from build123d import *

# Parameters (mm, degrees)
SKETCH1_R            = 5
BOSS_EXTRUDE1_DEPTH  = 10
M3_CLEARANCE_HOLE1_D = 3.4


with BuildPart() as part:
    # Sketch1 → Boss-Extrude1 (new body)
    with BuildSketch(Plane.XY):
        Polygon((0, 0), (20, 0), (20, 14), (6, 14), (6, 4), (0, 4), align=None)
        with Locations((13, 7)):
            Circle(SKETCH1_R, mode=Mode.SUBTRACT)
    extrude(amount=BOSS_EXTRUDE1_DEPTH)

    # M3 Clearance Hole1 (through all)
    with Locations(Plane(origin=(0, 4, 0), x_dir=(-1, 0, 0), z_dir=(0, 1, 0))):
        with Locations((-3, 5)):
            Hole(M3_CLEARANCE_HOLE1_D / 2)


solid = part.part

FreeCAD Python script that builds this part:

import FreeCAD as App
import Part
import Sketcher
from FreeCAD import Vector
Q = App.Units.Quantity

doc = App.newDocument("Part")
params = doc.addObject("Spreadsheet::Sheet", "Params")
for row, (alias, value) in enumerate([
    ("sketch1_diameter", "10 mm"),
    ("sketch1_width", "20 mm"),
    ("sketch1_width2", "14 mm"),
    ("sketch1_height", "10 mm"),
    ("pad1_length", "10 mm"),
    ("sketch2_diameter", "3.4 mm"),
    ("hole_diameter", "3.4 mm"),
], start=1):
    params.set(f"A{row}", alias)
    params.set(f"B{row}", "=" + value)
    params.setAlias(f"B{row}", alias)

body = doc.addObject("PartDesign::Body", "Body")

# Sketch on XY plane
sketch1 = body.newObject("Sketcher::SketchObject", "Sketch")
sketch1.AttachmentSupport = (doc.getObject("XY_Plane"), [""])
sketch1.MapMode = "FlatFace"
sketch1.addGeometry([
    Part.LineSegment(Vector(0, 0, 0), Vector(20, 0, 0)),  # 0
    Part.LineSegment(Vector(20, 0, 0), Vector(20, 14, 0)),  # 1
    Part.LineSegment(Vector(20, 14, 0), Vector(6, 14, 0)),  # 2
    Part.LineSegment(Vector(6, 14, 0), Vector(6, 4, 0)),  # 3
    Part.LineSegment(Vector(6, 4, 0), Vector(0, 4, 0)),  # 4
    Part.LineSegment(Vector(0, 4, 0), Vector(0, 0, 0)),  # 5
    Part.Circle(Vector(13, 7, 0), Vector(0, 0, 1), 5),  # 6
], False)
sketch1.addConstraint([
    Sketcher.Constraint("Coincident", 0, 2, 1, 1),
    Sketcher.Constraint("Coincident", 1, 2, 2, 1),
    Sketcher.Constraint("Coincident", 2, 2, 3, 1),
    Sketcher.Constraint("Coincident", 3, 2, 4, 1),
    Sketcher.Constraint("Coincident", 4, 2, 5, 1),
    Sketcher.Constraint("Coincident", 5, 2, 0, 1),
    Sketcher.Constraint("Horizontal", 0),
    Sketcher.Constraint("Vertical", 1),
    Sketcher.Constraint("Horizontal", 2),
    Sketcher.Constraint("Vertical", 3),
    Sketcher.Constraint("Horizontal", 4),
    Sketcher.Constraint("Vertical", 5),
    Sketcher.Constraint("Coincident", 5, 2, -1, 1),
    Sketcher.Constraint("Equal", 2, 1),
    Sketcher.Constraint("Diameter", 6, Q("10 mm")),
    Sketcher.Constraint("DistanceX", 0, 1, 0, 2, Q("20 mm")),
    Sketcher.Constraint("DistanceX", 2, 2, 2, 1, Q("14 mm")),
    Sketcher.Constraint("DistanceY", 3, 2, 3, 1, Q("10 mm")),
    Sketcher.Constraint("DistanceX", -1, 1, 6, 3, Q("13 mm")),
    Sketcher.Constraint("DistanceY", -1, 1, 6, 3, Q("7 mm")),
])
sketch1.setExpression("Constraints[14]", "Params.sketch1_diameter")
sketch1.setExpression("Constraints[15]", "Params.sketch1_width")
sketch1.setExpression("Constraints[16]", "Params.sketch1_width2")
sketch1.setExpression("Constraints[17]", "Params.sketch1_height")
pad1 = body.newObject("PartDesign::Pad", "Pad")
pad1.Profile = sketch1
pad1.setExpression("Length", "Params.pad1_length")

# Sketch on XZ plane
sketch2 = body.newObject("Sketcher::SketchObject", "Sketch001")
sketch2.AttachmentSupport = (doc.getObject("XZ_Plane"), [""])
sketch2.MapMode = "FlatFace"
sketch2.AttachmentOffset = App.Placement(Vector(0, 0, -4), App.Rotation())
sketch2.addGeometry(Part.Circle(Vector(3, 5, 0), Vector(0, 0, 1), 1.7), False)
sketch2.addConstraint([
    Sketcher.Constraint("Diameter", 0, Q("3.4 mm")),
    Sketcher.Constraint("DistanceX", -1, 1, 0, 3, Q("3 mm")),
    Sketcher.Constraint("DistanceY", -1, 1, 0, 3, Q("5 mm")),
])
sketch2.setExpression("Constraints[0]", "Params.sketch2_diameter")
doc.recompute()
hole = body.newObject("PartDesign::Hole", "Hole")
hole.Profile = sketch2
hole.ThreadType = "None"
hole.setExpression("Diameter", "Params.hole_diameter")
hole.DepthType = "ThroughAll"
hole.Reversed = True

doc.recompute()
